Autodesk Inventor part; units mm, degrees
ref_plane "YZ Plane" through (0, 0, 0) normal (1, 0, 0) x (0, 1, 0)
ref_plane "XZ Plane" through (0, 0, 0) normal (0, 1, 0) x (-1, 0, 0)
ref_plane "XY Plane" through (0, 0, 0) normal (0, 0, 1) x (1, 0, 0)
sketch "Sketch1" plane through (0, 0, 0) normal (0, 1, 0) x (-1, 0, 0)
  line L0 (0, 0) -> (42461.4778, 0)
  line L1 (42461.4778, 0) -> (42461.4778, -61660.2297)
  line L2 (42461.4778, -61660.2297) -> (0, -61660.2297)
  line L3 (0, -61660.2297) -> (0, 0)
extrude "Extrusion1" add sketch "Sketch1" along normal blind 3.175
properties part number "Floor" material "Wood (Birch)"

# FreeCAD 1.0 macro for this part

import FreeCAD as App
import Part
import Sketcher

V = App.Vector
Q = App.Units.Quantity

doc = App.newDocument("Part")
body = doc.addObject("PartDesign::Body", "Body")

sketch1 = body.newObject("Sketcher::SketchObject", "Sketch")
sketch1.AttachmentSupport = (doc.getObject("XZ_Plane"), [""])
sketch1.MapMode = "FlatFace"
sketch1.addGeometry(Part.LineSegment(V(-42461, 0, 0), V(0, 0, 0)), False)
sketch1.addGeometry(Part.LineSegment(V(0, 0, 0), V(0, -61660, 0)), False)
sketch1.addGeometry(Part.LineSegment(V(0, -61660, 0), V(-42461, -61660, 0)), False)
sketch1.addGeometry(Part.LineSegment(V(-42461, -61660, 0), V(-42461, 0, 0)), False)
sketch1.addConstraint(Sketcher.Constraint("Coincident", 0, 2, 1, 1))
sketch1.addConstraint(Sketcher.Constraint("Coincident", 1, 2, 2, 1))
sketch1.addConstraint(Sketcher.Constraint("Coincident", 2, 2, 3, 1))
sketch1.addConstraint(Sketcher.Constraint("Coincident", 3, 2, 0, 1))
sketch1.addConstraint(Sketcher.Constraint("Horizontal", 0))
sketch1.addConstraint(Sketcher.Constraint("Vertical", 1))
sketch1.addConstraint(Sketcher.Constraint("Horizontal", 2))
sketch1.addConstraint(Sketcher.Constraint("Vertical", 3))
sketch1.addConstraint(Sketcher.Constraint("Coincident", 0, 2, -1, 1))
sketch1.addConstraint(Sketcher.Constraint("DistanceY", 1, 2, 1, 1, Q("2427.5681 in")))
sketch1.addConstraint(Sketcher.Constraint("DistanceX", 0, 1, 0, 2, 42461.4778))
pad1 = body.newObject("PartDesign::Pad", "Pad")
pad1.Profile = sketch1
pad1.Length = Q("0.125 in")
pad1.Reversed = True

doc.recompute()
